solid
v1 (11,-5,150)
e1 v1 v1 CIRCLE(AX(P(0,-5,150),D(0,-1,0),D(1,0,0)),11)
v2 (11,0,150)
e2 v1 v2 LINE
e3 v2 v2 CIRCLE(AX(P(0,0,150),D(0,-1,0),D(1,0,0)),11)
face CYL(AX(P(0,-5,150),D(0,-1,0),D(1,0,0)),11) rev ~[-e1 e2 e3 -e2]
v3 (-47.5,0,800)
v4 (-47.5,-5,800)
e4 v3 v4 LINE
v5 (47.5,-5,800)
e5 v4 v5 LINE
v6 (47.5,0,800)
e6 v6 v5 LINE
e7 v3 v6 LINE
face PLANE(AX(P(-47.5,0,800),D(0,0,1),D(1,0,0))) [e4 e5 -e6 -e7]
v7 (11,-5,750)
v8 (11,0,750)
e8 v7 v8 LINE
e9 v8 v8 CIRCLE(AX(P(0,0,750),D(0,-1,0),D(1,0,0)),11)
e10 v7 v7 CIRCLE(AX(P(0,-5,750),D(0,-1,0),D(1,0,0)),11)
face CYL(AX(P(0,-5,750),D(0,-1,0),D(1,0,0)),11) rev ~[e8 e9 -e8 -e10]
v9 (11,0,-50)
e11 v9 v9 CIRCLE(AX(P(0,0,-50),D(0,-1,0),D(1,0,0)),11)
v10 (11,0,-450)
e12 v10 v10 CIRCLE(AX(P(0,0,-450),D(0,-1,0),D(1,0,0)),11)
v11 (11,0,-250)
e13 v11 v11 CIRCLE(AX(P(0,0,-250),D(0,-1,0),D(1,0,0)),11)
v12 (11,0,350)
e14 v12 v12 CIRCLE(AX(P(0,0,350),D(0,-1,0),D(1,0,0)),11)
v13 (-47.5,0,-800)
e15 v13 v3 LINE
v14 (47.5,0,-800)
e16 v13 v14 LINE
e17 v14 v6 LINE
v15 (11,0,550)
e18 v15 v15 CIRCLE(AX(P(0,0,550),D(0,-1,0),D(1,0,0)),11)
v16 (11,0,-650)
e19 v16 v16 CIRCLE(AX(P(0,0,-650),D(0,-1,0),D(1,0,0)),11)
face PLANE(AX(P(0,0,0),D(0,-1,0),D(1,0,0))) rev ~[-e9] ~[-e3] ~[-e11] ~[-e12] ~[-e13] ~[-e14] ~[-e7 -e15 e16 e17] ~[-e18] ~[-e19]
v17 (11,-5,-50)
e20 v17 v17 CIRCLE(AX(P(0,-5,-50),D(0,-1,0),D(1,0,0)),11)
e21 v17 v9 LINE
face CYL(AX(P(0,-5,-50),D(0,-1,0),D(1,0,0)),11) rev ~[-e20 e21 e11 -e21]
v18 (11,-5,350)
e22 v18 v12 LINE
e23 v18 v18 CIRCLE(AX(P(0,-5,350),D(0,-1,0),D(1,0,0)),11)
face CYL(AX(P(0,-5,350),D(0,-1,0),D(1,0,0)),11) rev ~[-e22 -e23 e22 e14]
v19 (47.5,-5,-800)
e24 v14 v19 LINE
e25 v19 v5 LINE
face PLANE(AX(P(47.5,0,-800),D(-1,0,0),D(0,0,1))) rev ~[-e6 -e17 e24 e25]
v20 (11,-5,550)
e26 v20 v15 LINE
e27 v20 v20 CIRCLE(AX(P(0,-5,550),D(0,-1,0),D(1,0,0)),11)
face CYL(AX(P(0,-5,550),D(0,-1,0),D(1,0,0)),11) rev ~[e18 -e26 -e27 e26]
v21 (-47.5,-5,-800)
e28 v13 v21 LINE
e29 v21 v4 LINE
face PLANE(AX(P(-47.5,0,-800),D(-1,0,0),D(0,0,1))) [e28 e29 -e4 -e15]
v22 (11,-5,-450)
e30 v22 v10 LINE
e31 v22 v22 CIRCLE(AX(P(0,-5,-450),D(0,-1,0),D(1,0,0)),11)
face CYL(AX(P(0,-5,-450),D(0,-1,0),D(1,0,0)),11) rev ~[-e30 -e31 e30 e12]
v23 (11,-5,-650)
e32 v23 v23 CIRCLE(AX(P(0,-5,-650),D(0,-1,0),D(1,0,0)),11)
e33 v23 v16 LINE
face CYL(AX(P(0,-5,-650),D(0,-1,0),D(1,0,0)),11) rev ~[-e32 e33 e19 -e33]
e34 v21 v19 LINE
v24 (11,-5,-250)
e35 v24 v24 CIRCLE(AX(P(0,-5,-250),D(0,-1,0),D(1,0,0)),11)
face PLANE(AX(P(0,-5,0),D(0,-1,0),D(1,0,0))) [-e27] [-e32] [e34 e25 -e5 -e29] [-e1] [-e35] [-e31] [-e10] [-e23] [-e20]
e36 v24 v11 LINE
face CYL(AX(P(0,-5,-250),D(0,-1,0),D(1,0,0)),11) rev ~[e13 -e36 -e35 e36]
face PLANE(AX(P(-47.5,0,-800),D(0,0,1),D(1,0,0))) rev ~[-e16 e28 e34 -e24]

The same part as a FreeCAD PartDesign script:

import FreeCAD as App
import Part
import Sketcher
from FreeCAD import Vector
Q = App.Units.Quantity

doc = App.newDocument("Part")
body = doc.addObject("PartDesign::Body", "Body")

sketch1 = doc.addObject("Sketcher::SketchObject", "Sketch")
body.addObject(sketch1)
sketch1.AttachmentSupport = (doc.XZ_Plane, [""])
sketch1.MapMode = "FlatFace"
sketch1.addGeometry(Part.LineSegment(Vector(-48, 800, 0), Vector(-48, -800, 0)), False)
sketch1.addGeometry(Part.LineSegment(Vector(-48, -800, 0), Vector(48, -800, 0)), False)
sketch1.addGeometry(Part.LineSegment(Vector(48, -800, 0), Vector(48, 800, 0)), False)
sketch1.addGeometry(Part.LineSegment(Vector(48, 800, 0), Vector(-48, 800, 0)), False)
sketch1.addConstraint(Sketcher.Constraint("Coincident", 0, 2, 1, 1))
sketch1.addConstraint(Sketcher.Constraint("Coincident", 1, 2, 2, 1))
sketch1.addConstraint(Sketcher.Constraint("Coincident", 2, 2, 3, 1))
sketch1.addConstraint(Sketcher.Constraint("Coincident", 3, 2, 0, 1))
sketch1.addConstraint(Sketcher.Constraint("Vertical", 0))
sketch1.addConstraint(Sketcher.Constraint("Horizontal", 1))
sketch1.addConstraint(Sketcher.Constraint("Vertical", 2))
sketch1.addConstraint(Sketcher.Constraint("Horizontal", 3))
sketch1.addConstraint(Sketcher.Constraint("Symmetric", 0, 2, 2, 2, -1, 1))
sketch1.addConstraint(Sketcher.Constraint("DistanceX", 1, 1, 1, 2, Q("95 mm")))
sketch1.addConstraint(Sketcher.Constraint("DistanceY", 0, 2, 0, 1, Q("1600 mm")))
pad1 = doc.addObject("PartDesign::Pad", "Pad")
body.addObject(pad1)
pad1.Profile = sketch1
pad1.Length = 5

sketch2 = doc.addObject("Sketcher::SketchObject", "Sketch001")
body.addObject(sketch2)
sketch2.AttachmentSupport = (doc.XZ_Plane, [""])
sketch2.MapMode = "FlatFace"
sketch2.AttachmentOffset = App.Placement(Vector(0, 0, 5), App.Rotation())
sketch2.addGeometry(Part.Circle(Vector(0, -250, 0), Vector(0, 0, 1), 11), False)
sketch2.addGeometry(Part.Circle(Vector(0, -50, 0), Vector(0, 0, 1), 11), False)
sketch2.addGeometry(Part.Circle(Vector(0, 150, 0), Vector(0, 0, 1), 11), False)
sketch2.addGeometry(Part.Circle(Vector(0, 350, 0), Vector(0, 0, 1), 11), False)
sketch2.addGeometry(Part.Circle(Vector(0, 550, 0), Vector(0, 0, 1), 11), False)
sketch2.addGeometry(Part.Circle(Vector(0, 750, 0), Vector(0, 0, 1), 11), False)
sketch2.addGeometry(Part.Circle(Vector(0, -450, 0), Vector(0, 0, 1), 11), False)
sketch2.addGeometry(Part.Circle(Vector(0, -650, 0), Vector(0, 0, 1), 11), False)
sketch2.addConstraint(Sketcher.Constraint("Equal", 0, 1))
sketch2.addConstraint(Sketcher.Constraint("Equal", 1, 2))
sketch2.addConstraint(Sketcher.Constraint("Equal", 2, 3))
sketch2.addConstraint(Sketcher.Constraint("Equal", 3, 4))
sketch2.addConstraint(Sketcher.Constraint("Equal", 4, 5))
sketch2.addConstraint(Sketcher.Constraint("Equal", 5, 6))
sketch2.addConstraint(Sketcher.Constraint("Equal", 6, 7))
sketch2.addConstraint(Sketcher.Constraint("PointOnObject", 0, 3, -2))
sketch2.addConstraint(Sketcher.Constraint("PointOnObject", 1, 3, -2))
sketch2.addConstraint(Sketcher.Constraint("PointOnObject", 2, 3, -2))
sketch2.addConstraint(Sketcher.Constraint("PointOnObject", 3, 3, -2))
sketch2.addConstraint(Sketcher.Constraint("PointOnObject", 4, 3, -2))
sketch2.addConstraint(Sketcher.Constraint("PointOnObject", 5, 3, -2))
sketch2.addConstraint(Sketcher.Constraint("PointOnObject", 6, 3, -2))
sketch2.addConstraint(Sketcher.Constraint("PointOnObject", 7, 3, -2))
sketch2.addConstraint(Sketcher.Constraint("Diameter", 0, Q("22 mm")))
sketch2.addConstraint(Sketcher.Constraint("DistanceY", 0, 3, -1, 1, Q("250 mm")))
sketch2.addConstraint(Sketcher.Constraint("DistanceY", 1, 3, -1, 1, Q("50 mm")))
sketch2.addConstraint(Sketcher.Constraint("DistanceY", -1, 1, 2, 3, Q("150 mm")))
sketch2.addConstraint(Sketcher.Constraint("DistanceY", -1, 1, 3, 3, Q("350 mm")))
sketch2.addConstraint(Sketcher.Constraint("DistanceY", -1, 1, 4, 3, Q("550 mm")))
sketch2.addConstraint(Sketcher.Constraint("DistanceY", -1, 1, 5, 3, Q("750 mm")))
sketch2.addConstraint(Sketcher.Constraint("DistanceY", 6, 3, -1, 1, Q("450 mm")))
sketch2.addConstraint(Sketcher.Constraint("DistanceY", 7, 3, -1, 1, Q("650 mm")))
pocket1 = doc.addObject("PartDesign::Pocket", "Pocket")
body.addObject(pocket1)
pocket1.Profile = sketch2
pocket1.Length = 25

doc.recompute()
